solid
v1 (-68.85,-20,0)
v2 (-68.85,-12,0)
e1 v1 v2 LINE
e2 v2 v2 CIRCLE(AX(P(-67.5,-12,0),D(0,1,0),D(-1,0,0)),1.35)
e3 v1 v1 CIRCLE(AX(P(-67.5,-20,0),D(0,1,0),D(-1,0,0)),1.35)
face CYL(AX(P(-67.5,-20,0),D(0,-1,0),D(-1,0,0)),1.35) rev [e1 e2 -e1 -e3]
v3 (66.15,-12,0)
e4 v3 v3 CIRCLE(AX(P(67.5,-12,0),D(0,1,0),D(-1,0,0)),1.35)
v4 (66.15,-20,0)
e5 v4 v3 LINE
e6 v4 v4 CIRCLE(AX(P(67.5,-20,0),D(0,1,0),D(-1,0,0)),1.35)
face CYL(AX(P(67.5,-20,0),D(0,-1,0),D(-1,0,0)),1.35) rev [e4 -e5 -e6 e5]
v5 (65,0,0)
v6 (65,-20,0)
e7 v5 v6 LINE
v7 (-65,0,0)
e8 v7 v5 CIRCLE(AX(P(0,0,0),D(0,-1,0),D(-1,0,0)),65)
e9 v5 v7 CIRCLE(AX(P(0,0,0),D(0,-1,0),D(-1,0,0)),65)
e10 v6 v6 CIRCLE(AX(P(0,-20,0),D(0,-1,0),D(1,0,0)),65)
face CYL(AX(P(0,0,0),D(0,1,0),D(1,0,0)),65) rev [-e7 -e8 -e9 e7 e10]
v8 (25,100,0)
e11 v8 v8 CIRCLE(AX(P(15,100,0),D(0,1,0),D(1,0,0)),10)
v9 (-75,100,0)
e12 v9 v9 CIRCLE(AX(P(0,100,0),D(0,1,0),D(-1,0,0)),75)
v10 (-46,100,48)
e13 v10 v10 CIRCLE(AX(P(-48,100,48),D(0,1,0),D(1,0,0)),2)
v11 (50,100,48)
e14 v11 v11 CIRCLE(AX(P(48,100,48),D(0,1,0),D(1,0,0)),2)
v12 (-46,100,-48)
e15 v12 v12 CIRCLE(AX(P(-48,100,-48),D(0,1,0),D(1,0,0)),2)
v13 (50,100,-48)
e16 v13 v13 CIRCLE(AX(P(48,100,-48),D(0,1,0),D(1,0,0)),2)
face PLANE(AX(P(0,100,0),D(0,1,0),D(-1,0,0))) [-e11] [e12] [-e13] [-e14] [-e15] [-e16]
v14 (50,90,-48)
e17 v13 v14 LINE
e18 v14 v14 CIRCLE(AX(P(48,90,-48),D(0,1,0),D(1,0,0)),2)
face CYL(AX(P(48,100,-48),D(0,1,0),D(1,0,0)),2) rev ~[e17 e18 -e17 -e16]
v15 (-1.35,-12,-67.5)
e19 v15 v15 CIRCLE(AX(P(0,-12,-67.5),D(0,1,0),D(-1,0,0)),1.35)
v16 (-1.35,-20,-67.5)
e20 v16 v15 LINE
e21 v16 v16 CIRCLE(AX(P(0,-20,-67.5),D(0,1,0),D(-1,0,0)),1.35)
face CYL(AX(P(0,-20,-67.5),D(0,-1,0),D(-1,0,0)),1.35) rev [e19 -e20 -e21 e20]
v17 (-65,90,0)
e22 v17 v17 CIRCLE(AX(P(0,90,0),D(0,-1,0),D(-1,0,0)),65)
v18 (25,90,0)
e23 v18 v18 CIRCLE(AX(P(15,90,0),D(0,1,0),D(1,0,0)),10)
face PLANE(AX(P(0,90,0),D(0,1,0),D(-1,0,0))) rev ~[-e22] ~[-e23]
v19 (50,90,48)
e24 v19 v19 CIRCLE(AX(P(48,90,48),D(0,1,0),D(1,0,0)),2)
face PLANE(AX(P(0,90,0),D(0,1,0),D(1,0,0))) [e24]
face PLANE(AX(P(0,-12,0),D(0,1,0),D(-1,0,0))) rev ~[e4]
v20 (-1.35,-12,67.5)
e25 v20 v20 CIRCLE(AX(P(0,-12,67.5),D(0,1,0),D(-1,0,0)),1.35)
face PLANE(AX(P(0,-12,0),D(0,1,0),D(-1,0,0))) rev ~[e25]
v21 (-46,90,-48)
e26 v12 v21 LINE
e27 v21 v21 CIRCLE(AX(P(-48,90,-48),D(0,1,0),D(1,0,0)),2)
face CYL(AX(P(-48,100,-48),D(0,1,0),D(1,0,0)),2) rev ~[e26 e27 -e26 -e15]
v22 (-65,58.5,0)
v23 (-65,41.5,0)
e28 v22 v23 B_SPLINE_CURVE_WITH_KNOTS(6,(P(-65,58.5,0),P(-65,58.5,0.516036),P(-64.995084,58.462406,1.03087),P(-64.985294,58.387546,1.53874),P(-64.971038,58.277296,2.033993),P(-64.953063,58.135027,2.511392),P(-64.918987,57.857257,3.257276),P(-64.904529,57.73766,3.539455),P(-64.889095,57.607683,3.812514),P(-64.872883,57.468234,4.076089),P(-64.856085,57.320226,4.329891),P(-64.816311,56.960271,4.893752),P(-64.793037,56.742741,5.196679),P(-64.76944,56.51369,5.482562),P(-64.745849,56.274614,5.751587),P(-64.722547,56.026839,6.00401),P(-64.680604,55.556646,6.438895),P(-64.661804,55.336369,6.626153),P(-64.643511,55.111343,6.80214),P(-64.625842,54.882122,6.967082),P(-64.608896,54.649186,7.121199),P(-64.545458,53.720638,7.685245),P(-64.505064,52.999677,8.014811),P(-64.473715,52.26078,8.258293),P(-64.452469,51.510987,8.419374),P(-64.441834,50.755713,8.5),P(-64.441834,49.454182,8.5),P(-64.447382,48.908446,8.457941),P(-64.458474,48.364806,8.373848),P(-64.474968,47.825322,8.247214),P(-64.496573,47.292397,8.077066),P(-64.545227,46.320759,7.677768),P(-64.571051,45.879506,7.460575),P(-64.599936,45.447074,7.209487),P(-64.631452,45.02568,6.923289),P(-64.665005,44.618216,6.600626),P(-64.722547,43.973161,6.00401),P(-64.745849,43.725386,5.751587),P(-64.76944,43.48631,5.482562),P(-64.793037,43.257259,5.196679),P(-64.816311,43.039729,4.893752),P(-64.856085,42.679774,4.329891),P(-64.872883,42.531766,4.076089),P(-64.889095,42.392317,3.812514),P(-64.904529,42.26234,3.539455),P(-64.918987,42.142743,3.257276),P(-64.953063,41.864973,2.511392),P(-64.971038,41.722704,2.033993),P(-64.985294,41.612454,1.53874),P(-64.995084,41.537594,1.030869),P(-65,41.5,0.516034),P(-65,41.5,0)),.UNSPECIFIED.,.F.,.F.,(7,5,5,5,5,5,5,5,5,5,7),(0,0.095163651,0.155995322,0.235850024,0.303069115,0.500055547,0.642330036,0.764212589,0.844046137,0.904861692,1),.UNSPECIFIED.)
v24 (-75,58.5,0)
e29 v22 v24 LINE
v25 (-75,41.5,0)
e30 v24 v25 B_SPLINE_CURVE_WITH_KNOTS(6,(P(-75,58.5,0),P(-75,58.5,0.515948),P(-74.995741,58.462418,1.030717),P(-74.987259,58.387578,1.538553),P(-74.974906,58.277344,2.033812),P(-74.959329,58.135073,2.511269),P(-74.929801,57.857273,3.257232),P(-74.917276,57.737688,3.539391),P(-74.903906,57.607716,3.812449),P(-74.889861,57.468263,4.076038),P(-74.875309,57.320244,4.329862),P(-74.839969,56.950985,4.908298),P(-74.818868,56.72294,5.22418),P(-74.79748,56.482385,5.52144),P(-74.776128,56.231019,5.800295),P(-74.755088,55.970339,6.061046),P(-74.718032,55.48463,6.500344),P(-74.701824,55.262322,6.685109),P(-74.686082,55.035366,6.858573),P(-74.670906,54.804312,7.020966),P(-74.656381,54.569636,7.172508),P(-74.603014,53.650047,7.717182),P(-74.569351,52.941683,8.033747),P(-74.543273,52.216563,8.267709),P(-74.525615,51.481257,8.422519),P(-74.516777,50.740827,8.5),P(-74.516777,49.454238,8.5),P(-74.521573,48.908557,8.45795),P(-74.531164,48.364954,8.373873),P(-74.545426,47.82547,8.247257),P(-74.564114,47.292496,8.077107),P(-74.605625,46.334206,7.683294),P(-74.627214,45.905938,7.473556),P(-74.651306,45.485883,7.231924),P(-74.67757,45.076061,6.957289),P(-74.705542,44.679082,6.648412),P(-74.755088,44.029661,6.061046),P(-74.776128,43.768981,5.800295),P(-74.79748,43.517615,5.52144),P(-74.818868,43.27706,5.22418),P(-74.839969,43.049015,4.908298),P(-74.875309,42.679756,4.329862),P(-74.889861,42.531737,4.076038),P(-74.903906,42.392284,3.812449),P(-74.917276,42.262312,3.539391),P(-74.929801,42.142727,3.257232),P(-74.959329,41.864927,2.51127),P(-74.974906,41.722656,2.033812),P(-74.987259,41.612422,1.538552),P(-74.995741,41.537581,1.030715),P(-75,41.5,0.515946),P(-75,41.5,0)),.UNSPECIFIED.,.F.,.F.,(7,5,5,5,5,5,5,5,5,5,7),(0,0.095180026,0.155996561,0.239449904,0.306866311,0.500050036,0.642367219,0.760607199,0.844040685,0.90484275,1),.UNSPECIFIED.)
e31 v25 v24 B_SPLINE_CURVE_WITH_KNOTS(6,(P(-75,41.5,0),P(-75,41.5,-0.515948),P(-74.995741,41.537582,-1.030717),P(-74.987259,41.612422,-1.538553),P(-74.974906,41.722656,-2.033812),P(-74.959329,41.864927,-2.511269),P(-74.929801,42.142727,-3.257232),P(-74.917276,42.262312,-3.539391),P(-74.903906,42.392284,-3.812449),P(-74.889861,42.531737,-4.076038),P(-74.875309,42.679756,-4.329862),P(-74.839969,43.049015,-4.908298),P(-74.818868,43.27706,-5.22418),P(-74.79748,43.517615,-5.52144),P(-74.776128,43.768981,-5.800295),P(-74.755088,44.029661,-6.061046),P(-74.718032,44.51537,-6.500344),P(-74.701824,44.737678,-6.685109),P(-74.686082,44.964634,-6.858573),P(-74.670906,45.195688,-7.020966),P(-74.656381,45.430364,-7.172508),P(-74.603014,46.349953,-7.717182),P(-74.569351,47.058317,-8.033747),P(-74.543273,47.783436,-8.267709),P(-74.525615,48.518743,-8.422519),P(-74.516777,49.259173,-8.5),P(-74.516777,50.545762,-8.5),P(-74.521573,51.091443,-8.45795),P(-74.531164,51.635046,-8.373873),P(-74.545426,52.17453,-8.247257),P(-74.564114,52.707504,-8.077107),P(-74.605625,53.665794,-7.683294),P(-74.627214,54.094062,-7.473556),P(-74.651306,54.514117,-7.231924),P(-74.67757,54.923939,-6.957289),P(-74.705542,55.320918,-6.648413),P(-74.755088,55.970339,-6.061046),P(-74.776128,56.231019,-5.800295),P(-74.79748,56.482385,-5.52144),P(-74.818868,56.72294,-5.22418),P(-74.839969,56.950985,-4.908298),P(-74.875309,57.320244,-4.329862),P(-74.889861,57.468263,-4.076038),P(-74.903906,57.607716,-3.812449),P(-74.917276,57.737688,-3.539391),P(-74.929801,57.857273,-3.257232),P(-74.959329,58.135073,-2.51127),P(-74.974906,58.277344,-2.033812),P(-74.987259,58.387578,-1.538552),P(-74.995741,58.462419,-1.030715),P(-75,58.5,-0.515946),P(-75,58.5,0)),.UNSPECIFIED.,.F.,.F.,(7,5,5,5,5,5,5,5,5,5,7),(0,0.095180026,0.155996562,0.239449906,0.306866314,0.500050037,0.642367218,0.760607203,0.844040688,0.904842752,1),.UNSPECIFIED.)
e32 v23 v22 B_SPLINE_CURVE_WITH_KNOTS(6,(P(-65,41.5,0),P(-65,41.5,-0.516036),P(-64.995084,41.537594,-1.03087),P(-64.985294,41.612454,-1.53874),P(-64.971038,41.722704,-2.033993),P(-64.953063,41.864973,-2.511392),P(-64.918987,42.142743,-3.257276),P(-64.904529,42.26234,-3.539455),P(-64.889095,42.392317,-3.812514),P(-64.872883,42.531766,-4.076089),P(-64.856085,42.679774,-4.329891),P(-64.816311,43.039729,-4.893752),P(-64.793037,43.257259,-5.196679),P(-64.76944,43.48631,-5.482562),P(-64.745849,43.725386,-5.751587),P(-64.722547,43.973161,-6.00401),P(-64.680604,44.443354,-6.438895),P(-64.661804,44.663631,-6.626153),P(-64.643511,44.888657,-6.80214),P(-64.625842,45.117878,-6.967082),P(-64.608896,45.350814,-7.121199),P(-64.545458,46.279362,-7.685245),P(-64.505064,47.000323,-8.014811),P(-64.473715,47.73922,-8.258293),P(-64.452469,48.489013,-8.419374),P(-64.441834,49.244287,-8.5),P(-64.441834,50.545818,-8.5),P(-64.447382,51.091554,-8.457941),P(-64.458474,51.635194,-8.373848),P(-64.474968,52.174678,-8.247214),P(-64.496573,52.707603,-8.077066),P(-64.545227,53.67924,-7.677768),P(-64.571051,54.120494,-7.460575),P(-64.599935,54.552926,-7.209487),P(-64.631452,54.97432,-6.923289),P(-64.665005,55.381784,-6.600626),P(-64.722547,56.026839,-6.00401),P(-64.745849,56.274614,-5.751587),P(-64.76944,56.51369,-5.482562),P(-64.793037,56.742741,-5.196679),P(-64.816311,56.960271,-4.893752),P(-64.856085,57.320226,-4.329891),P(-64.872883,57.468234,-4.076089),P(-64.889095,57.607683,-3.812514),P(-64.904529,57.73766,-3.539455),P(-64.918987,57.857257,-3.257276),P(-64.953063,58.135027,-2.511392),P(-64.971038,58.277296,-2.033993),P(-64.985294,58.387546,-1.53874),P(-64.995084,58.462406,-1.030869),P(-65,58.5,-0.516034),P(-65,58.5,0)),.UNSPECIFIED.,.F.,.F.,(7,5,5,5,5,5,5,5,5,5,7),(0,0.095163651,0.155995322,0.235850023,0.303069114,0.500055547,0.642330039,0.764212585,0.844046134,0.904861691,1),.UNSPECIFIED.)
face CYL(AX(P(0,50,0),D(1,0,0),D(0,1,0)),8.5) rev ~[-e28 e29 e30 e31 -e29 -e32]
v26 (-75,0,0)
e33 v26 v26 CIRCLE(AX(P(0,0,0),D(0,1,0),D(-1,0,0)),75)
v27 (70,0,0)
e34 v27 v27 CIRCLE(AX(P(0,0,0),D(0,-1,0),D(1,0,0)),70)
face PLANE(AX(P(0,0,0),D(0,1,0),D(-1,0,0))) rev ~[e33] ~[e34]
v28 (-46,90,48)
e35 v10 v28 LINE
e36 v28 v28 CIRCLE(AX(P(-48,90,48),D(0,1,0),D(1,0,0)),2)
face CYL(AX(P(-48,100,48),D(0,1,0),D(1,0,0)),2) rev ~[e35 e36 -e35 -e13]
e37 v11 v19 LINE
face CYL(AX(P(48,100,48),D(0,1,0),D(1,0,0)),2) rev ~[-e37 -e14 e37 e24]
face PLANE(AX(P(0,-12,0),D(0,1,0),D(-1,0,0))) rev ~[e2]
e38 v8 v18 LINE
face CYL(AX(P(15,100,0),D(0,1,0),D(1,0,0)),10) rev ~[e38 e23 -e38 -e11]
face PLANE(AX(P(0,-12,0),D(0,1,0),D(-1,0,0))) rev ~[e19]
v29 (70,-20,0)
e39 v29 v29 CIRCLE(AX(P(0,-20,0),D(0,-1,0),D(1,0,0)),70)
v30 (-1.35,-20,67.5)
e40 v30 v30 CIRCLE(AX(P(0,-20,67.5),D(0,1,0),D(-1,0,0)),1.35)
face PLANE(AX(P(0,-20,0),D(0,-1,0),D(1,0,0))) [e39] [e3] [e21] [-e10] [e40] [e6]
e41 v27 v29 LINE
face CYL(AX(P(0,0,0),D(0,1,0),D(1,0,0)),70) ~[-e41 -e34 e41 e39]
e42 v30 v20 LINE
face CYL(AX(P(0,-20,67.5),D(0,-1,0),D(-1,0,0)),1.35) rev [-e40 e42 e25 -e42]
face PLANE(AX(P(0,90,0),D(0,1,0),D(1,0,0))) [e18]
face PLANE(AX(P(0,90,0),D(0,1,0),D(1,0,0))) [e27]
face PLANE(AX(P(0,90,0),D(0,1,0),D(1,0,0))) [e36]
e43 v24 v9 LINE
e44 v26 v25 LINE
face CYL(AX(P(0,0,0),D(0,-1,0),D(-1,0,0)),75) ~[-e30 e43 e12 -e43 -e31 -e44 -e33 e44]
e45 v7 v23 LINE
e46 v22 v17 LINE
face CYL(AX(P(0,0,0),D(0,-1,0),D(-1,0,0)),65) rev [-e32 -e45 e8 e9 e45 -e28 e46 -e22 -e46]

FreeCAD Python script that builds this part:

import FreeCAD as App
import Part
import Sketcher
from FreeCAD import Vector


def faces_at(feature, points):
    """Names of the faces that lie closest to the given points."""
    faces = feature.Shape.Faces
    near = lambda p: min(range(len(faces)), key=lambda i: faces[i].distToShape(Part.Vertex(*p))[0])
    return sorted({f"Face{near(p) + 1}" for p in points})

doc = App.newDocument("Part")
body = doc.addObject("PartDesign::Body", "Body")

# Sketch on XZ plane
sketch1 = body.newObject("Sketcher::SketchObject", "Sketch")
sketch1.AttachmentSupport = (doc.getObject("XZ_Plane"), [""])
sketch1.MapMode = "FlatFace"
sketch1.addGeometry(Part.Circle(Vector(0, 0, 0), Vector(0, 0, 1), 75), False)
sketch1.addConstraint([
    Sketcher.Constraint("Coincident", 0, 3, -1, 1),
    Sketcher.Constraint("Diameter", 0, 150.0),
])
pad1 = body.newObject("PartDesign::Pad", "Pad")
pad1.Profile = sketch1
pad1.Length = 100
pad1.Reversed = True
doc.recompute()

thickness = body.newObject("PartDesign::Thickness", "Thickness")
thickness.Base = (pad1, faces_at(pad1, [(-17.721, 0, 28.023)]))
thickness.Value = 10
thickness.Reversed = True
thickness.Join = "Intersection"

# Sketch on XZ plane
sketch2 = body.newObject("Sketcher::SketchObject", "Sketch001")
sketch2.AttachmentSupport = (doc.getObject("XZ_Plane"), [""])
sketch2.MapMode = "FlatFace"
sketch2.addGeometry([
    Part.Circle(Vector(0, 0, 0), Vector(0, 0, 1), 70),
    Part.Circle(Vector(0, 0, 0), Vector(0, 0, 1), 65),
], False)
sketch2.addConstraint([
    Sketcher.Constraint("Coincident", 0, 3, -1, 1),
    Sketcher.Constraint("Coincident", 1, 3, -1, 1),
    Sketcher.Constraint("Diameter", 0, 140.0),
    Sketcher.Constraint("Diameter", 1, 130.0),
])
pad2 = body.newObject("PartDesign::Pad", "Pad001")
pad2.Profile = sketch2
pad2.Length = 20

# Sketch on XZ plane
sketch3 = body.newObject("Sketcher::SketchObject", "Sketch002")
sketch3.AttachmentSupport = (doc.getObject("XZ_Plane"), [""])
sketch3.MapMode = "FlatFace"
sketch3.AttachmentOffset = App.Placement(Vector(0, 0, -100), App.Rotation())
sketch3.addGeometry(Part.Circle(Vector(15, 0, 0), Vector(0, 0, 1), 10), False)
sketch3.addConstraint([
    Sketcher.Constraint("PointOnObject", 0, 3, -1),
    Sketcher.Constraint("Diameter", 0, 20.0),
    Sketcher.Constraint("DistanceX", -1, 1, 0, 3, 15.0),
])
pocket1 = body.newObject("PartDesign::Pocket", "Pocket")
pocket1.Profile = sketch3
pocket1.Length = 10
pocket1.Reversed = True

# Sketch on YZ plane
sketch4 = body.newObject("Sketcher::SketchObject", "Sketch003")
sketch4.AttachmentSupport = (doc.getObject("YZ_Plane"), [""])
sketch4.MapMode = "FlatFace"
sketch4.addGeometry(Part.Circle(Vector(50, 0, 0), Vector(0, 0, 1), 8), False)
sketch4.addConstraint([
    Sketcher.Constraint("PointOnObject", 0, 3, -1),
    Sketcher.Constraint("Diameter", 0, 17.0),
    Sketcher.Constraint("DistanceX", -1, 1, 0, 3, 50.0),
])
pocket2 = body.newObject("PartDesign::Pocket", "Pocket001")
pocket2.Profile = sketch4
pocket2.Type = "ThroughAll"

# Sketch on XZ plane
sketch5 = body.newObject("Sketcher::SketchObject", "Sketch004")
sketch5.AttachmentSupport = (doc.getObject("XZ_Plane"), [""])
sketch5.MapMode = "FlatFace"
sketch5.AttachmentOffset = App.Placement(Vector(0, 0, -100), App.Rotation())
sketch5.addGeometry([
    Part.Circle(Vector(48, 48, 0), Vector(0, 0, 1), 2),
    Part.Circle(Vector(-48, 48, 0), Vector(0, 0, 1), 2),
    Part.Circle(Vector(48, -48, 0), Vector(0, 0, 1), 2),
    Part.Circle(Vector(-48, -48, 0), Vector(0, 0, 1), 2),
], False)
sketch5.addConstraint([
    Sketcher.Constraint("Equal", 0, 1),
    Sketcher.Constraint("Equal", 1, 2),
    Sketcher.Constraint("Equal", 2, 3),
    Sketcher.Constraint("Symmetric", 1, 3, 2, 3, -1, 1),
    Sketcher.Constraint("Symmetric", 0, 3, 3, 3, -1, 1),
    Sketcher.Constraint("Symmetric", 0, 3, 1, 3, -2),
    Sketcher.Constraint("Diameter", 0, 4.0),
    Sketcher.Constraint("DistanceX", 1, 3, 0, 3, 96.0),
    Sketcher.Constraint("DistanceY", 2, 3, 0, 3, 96.0),
])
pocket3 = body.newObject("PartDesign::Pocket", "Pocket002")
pocket3.Profile = sketch5
pocket3.Length = 10
pocket3.Reversed = True

# Sketch on XZ plane
sketch6 = body.newObject("Sketcher::SketchObject", "Sketch005")
sketch6.AttachmentSupport = (doc.getObject("XZ_Plane"), [""])
sketch6.MapMode = "FlatFace"
sketch6.AttachmentOffset = App.Placement(Vector(0, 0, 20), App.Rotation())
sketch6.addGeometry([
    Part.Circle(Vector(67.5, 0, 0), Vector(0, 0, 1), 1.4),
    Part.Circle(Vector(0, -67.5, 0), Vector(0, 0, 1), 1.4),
    Part.Circle(Vector(-67.5, 0, 0), Vector(0, 0, 1), 1.4),
    Part.Circle(Vector(0, 67.5, 0), Vector(0, 0, 1), 1.4),
], False)
sketch6.addConstraint([
    Sketcher.Constraint("Equal", 0, 1),
    Sketcher.Constraint("Equal", 1, 2),
    Sketcher.Constraint("Equal", 2, 3),
    Sketcher.Constraint("Symmetric", 0, 3, 2, 3, -1, 1),
    Sketcher.Constraint("Symmetric", 1, 3, 3, 3, -1, 1),
    Sketcher.Constraint("PointOnObject", 0, 3, -1),
    Sketcher.Constraint("PointOnObject", 1, 3, -2),
    Sketcher.Constraint("Diameter", 0, 2.7),
    Sketcher.Constraint("DistanceX", 2, 3, 0, 3, 135.0),
    Sketcher.Constraint("DistanceY", 1, 3, 3, 3, 135.0),
])
pocket4 = body.newObject("PartDesign::Pocket", "Pocket003")
pocket4.Profile = sketch6
pocket4.Length = 8

doc.recompute()
